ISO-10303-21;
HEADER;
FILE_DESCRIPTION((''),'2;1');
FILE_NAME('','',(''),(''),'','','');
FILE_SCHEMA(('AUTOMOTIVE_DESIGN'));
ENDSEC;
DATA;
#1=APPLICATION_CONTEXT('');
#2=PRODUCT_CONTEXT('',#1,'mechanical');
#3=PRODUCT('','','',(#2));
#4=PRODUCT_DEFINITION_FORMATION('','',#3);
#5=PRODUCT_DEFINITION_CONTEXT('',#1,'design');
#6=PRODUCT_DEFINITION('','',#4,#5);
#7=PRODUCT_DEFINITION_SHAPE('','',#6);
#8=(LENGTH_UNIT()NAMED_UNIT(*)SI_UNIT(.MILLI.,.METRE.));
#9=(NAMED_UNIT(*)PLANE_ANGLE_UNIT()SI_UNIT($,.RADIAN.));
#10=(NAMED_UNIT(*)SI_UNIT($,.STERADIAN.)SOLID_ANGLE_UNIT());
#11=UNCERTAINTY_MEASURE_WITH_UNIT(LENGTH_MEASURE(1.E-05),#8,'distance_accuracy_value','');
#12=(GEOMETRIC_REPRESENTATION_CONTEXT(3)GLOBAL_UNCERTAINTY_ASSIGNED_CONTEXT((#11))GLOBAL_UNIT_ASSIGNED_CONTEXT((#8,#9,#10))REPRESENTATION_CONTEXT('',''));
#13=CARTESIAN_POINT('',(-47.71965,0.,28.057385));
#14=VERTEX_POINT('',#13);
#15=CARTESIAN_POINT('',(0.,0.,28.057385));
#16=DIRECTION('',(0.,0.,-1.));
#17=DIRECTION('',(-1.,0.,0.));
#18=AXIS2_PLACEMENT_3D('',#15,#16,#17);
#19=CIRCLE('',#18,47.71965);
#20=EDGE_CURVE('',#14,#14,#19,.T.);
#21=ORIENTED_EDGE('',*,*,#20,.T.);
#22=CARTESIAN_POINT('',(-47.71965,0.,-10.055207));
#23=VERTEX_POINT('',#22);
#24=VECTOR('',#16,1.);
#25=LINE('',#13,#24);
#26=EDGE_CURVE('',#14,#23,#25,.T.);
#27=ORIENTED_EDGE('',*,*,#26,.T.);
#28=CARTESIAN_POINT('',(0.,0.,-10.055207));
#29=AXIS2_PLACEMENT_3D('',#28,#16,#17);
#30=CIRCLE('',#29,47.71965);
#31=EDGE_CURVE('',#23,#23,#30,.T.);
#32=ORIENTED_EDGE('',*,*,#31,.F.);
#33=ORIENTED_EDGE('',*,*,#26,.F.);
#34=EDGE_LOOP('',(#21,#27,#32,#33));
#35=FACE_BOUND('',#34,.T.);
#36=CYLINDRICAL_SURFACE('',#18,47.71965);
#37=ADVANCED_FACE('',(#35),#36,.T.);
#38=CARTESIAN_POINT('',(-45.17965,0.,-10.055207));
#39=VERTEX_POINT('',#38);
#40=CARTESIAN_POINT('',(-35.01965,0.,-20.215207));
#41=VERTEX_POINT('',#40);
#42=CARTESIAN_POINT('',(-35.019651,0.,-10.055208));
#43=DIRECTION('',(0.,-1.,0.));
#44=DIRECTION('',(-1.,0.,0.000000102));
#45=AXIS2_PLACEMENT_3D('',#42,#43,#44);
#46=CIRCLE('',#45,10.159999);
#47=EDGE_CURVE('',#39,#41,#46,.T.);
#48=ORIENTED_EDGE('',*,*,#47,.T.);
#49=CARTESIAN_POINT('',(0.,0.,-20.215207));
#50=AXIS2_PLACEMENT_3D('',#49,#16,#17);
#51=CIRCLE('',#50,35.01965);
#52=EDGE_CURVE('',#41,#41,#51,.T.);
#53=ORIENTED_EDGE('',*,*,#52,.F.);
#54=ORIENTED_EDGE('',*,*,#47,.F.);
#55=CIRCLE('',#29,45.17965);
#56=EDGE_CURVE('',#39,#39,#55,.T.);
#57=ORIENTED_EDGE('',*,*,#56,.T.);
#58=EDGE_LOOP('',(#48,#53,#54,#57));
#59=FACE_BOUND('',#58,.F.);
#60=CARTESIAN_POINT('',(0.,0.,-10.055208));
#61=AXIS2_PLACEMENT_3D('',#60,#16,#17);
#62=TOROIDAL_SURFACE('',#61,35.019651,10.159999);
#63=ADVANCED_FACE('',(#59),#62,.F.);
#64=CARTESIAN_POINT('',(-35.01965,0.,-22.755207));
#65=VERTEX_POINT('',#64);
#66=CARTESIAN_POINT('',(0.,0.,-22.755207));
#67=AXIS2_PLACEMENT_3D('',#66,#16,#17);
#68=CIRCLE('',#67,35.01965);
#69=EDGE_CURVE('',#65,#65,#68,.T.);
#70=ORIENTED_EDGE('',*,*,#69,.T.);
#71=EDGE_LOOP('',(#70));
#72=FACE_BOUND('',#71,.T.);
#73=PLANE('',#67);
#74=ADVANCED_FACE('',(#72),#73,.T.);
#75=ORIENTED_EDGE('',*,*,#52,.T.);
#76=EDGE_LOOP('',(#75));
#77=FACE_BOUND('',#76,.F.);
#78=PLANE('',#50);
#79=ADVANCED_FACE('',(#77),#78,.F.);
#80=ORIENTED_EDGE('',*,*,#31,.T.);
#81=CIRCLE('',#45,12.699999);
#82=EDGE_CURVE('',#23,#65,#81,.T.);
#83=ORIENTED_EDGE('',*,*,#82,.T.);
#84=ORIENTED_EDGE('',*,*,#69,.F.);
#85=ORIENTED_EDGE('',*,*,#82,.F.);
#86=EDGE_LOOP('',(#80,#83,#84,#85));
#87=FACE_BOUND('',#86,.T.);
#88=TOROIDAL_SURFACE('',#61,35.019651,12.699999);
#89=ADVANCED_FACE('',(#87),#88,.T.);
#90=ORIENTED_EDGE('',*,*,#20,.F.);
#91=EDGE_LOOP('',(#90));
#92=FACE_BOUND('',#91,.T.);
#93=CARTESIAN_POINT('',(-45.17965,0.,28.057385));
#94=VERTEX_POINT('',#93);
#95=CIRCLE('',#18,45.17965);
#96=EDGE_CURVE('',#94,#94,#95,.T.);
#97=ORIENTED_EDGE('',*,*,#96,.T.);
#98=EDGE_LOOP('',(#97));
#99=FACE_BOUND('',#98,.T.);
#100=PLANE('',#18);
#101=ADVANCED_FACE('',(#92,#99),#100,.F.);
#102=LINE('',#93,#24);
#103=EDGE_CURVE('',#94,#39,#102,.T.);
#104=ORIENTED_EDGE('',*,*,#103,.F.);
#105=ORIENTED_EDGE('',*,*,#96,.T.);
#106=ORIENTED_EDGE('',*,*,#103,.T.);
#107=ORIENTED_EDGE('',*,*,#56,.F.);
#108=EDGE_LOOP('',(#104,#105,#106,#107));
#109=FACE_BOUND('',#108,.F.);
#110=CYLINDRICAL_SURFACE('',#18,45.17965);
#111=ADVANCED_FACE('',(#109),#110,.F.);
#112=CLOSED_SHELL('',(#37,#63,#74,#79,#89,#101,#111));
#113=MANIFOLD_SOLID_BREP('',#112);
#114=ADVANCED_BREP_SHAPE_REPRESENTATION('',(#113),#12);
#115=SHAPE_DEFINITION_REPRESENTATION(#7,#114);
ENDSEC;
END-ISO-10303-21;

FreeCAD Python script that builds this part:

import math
import FreeCAD as App
import Part
import Sketcher
Q = App.Units.Quantity


def faces_at(feature, points):
    """Names of the faces that lie closest to the given points."""
    faces = feature.Shape.Faces
    near = lambda p: min(range(len(faces)), key=lambda i: faces[i].distToShape(Part.Vertex(*p))[0])
    return sorted({f"Face{near(p) + 1}" for p in points})

doc = App.newDocument("Part")
params = doc.addObject("Spreadsheet::Sheet", "Params")
for row, (alias, value) in enumerate([
    ("sketch1_radius", "0.4999999 in"),
    ("revolution_angle", "360 deg"),
    ("thickness_wall", "0.1 in"),
], start=1):
    params.set(f"A{row}", alias)
    params.set(f"B{row}", "=" + value)
    params.setAlias(f"B{row}", alias)

body = doc.addObject("PartDesign::Body", "Body")

# Sketch on XZ plane
sketch1 = body.newObject("Sketcher::SketchObject", "Sketch")
sketch1.AttachmentSupport = (doc.getObject("XZ_Plane"), [""])
sketch1.MapMode = "FlatFace"
sketch1.addGeometry([
    Part.LineSegment(App.Vector(0, 28.057385, 0), App.Vector(-47.71965, 28.057385, 0)),  # 0
    Part.LineSegment(App.Vector(-47.71965, 28.057385, 0), App.Vector(-47.71965, -10.055207, 0)),  # 1
    Part.ArcOfCircle(Part.Circle(App.Vector(-35.019651, -10.055208, 0), App.Vector(0, 0, 1), 12.699999), math.radians(179.999994), math.radians(270.000006)),  # 2
    Part.LineSegment(App.Vector(-35.01965, -22.755207, 0), App.Vector(0, -22.755207, 0)),  # 3
    Part.LineSegment(App.Vector(0, -22.755207, 0), App.Vector(0, 28.057385, 0)),  # 4
], False)
sketch1.addConstraint([
    Sketcher.Constraint("Coincident", 0, 2, 1, 1),
    Sketcher.Constraint("Tangent", 1, 2, 2, 1),
    Sketcher.Constraint("Tangent", 2, 2, 3, 1),
    Sketcher.Constraint("Coincident", 3, 2, 4, 1),
    Sketcher.Constraint("Coincident", 4, 2, 0, 1),
    Sketcher.Constraint("Horizontal", 0),
    Sketcher.Constraint("Vertical", 1),
    Sketcher.Constraint("Horizontal", 3),
    Sketcher.Constraint("Vertical", 4),
    Sketcher.Constraint("PointOnObject", 3, 2, -2),
    Sketcher.Constraint("Radius", 2, Q("0.4999999 in")),
    Sketcher.Constraint("DistanceX", 0, 2, 0, 1, 47.71965),
    Sketcher.Constraint("DistanceY", 4, 1, 4, 2, 50.812592),
    Sketcher.Constraint("DistanceY", 2, 3, -1, 1, 10.055208),
])
sketch1.setExpression("Constraints[10]", "Params.sketch1_radius")
revolution = body.newObject("PartDesign::Revolution", "Revolution")
revolution.Profile = sketch1
revolution.ReferenceAxis = (sketch1, ["V_Axis"])
revolution.setExpression("Angle", "Params.revolution_angle")
doc.recompute()

thickness = body.newObject("PartDesign::Thickness", "Thickness")
thickness.Base = (revolution, faces_at(revolution, [(0, 0, 28.057)]))
thickness.setExpression("Value", "Params.thickness_wall")
thickness.Reversed = True
thickness.Join = "Arc"

doc.recompute()
